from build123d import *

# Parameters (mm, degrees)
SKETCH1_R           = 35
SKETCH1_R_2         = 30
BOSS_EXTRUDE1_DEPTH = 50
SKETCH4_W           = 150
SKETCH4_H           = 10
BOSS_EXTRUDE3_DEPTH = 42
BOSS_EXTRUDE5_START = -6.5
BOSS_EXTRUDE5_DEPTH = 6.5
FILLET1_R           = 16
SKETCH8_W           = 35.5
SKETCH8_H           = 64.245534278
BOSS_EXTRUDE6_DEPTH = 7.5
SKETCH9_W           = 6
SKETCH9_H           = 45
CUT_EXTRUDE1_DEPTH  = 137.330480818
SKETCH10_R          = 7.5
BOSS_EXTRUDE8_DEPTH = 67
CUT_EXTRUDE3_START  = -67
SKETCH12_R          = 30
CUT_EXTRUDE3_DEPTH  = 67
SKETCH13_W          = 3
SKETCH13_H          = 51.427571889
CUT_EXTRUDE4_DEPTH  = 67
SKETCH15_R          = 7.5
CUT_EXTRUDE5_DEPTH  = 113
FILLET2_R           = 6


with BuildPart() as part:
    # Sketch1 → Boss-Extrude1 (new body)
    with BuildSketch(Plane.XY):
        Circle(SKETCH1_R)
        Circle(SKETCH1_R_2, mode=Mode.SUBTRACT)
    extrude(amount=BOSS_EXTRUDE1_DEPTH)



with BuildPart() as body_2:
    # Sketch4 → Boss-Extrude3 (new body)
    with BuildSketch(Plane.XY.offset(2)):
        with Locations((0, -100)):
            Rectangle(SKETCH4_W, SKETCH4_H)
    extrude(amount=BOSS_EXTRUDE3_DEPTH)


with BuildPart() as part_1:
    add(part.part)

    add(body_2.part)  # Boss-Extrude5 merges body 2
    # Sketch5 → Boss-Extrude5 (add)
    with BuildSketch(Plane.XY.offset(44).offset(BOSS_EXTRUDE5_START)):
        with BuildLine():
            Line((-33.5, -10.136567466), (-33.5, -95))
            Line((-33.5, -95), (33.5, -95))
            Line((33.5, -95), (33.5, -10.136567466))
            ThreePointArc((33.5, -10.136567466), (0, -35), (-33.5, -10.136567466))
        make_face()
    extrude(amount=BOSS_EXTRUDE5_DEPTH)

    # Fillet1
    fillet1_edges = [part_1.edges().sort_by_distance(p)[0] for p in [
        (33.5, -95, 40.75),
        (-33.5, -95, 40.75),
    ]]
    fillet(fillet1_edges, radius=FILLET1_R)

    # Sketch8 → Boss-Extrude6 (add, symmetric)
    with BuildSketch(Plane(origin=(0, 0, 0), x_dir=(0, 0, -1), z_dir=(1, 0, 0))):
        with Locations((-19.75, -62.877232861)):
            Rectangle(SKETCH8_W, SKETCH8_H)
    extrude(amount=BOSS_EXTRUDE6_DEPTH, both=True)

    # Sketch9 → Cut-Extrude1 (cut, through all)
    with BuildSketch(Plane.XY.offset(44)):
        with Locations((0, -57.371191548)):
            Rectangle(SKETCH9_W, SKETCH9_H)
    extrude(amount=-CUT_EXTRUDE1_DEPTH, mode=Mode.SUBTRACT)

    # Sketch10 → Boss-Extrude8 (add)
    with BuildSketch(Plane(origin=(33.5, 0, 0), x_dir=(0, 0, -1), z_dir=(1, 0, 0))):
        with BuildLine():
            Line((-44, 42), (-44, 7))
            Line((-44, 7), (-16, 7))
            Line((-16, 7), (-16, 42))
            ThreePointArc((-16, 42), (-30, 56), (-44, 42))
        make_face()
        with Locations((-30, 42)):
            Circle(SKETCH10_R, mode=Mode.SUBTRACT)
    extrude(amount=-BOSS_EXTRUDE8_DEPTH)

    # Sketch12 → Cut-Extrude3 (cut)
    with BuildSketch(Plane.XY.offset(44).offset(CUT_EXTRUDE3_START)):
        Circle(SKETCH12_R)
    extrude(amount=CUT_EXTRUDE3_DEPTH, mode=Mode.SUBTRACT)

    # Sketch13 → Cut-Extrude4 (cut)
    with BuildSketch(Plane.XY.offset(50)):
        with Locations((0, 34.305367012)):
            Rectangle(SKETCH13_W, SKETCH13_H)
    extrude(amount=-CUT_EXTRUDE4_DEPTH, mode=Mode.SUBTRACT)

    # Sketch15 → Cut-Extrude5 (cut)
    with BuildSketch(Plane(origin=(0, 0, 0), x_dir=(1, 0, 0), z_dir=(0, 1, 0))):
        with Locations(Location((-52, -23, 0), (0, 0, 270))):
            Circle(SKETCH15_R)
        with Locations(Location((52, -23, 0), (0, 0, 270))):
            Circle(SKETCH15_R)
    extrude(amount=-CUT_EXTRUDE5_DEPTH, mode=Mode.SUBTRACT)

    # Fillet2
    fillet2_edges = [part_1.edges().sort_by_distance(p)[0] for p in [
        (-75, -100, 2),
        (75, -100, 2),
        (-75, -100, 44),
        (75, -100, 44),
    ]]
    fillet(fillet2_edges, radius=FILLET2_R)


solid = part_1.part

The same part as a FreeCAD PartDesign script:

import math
import FreeCAD as App
import Part
import Sketcher
from FreeCAD import Vector


def edges_at(feature, points):
    """Names of the edges that pass closest to the given points."""
    edges = feature.Shape.Edges
    near = lambda p: min(range(len(edges)), key=lambda i: edges[i].distToShape(Part.Vertex(*p))[0])
    return sorted({f"Edge{near(p) + 1}" for p in points})

doc = App.newDocument("Part")
body = doc.addObject("PartDesign::Body", "Body")

sketch1 = body.newObject("Sketcher::SketchObject", "Sketch")
sketch1.AttachmentSupport = (doc.getObject("XY_Plane"), [""])
sketch1.MapMode = "FlatFace"
sketch1.addGeometry([
    Part.Circle(Vector(0, 0, 0), Vector(0, 0, 1), 35),
    Part.Circle(Vector(0, 0, 0), Vector(0, 0, 1), 30),
], False)
sketch1.addConstraint([
    Sketcher.Constraint("Coincident", 0, 3, -1, 1),
    Sketcher.Constraint("Coincident", 1, 3, -1, 1),
    Sketcher.Constraint("Diameter", 0, 70.0),
    Sketcher.Constraint("Diameter", 1, 60.0),
])
pad1 = body.newObject("PartDesign::Pad", "Pad")
pad1.Profile = sketch1
pad1.Length = 50
body2 = doc.addObject("PartDesign::Body", "Body001")

sketch2 = body2.newObject("Sketcher::SketchObject", "Sketch001")
sketch2.AttachmentSupport = (doc.getObject("XY_Plane001"), [""])
sketch2.MapMode = "FlatFace"
sketch2.AttachmentOffset = App.Placement(Vector(0, 0, 2), App.Rotation())
sketch2.addGeometry([
    Part.LineSegment(Vector(-75, -95, 0), Vector(-75, -105, 0)),
    Part.LineSegment(Vector(-75, -105, 0), Vector(75, -105, 0)),
    Part.LineSegment(Vector(75, -105, 0), Vector(75, -95, 0)),
    Part.LineSegment(Vector(75, -95, 0), Vector(-75, -95, 0)),
], False)
sketch2.addConstraint([
    Sketcher.Constraint("Coincident", 0, 2, 1, 1),
    Sketcher.Constraint("Coincident", 1, 2, 2, 1),
    Sketcher.Constraint("Coincident", 2, 2, 3, 1),
    Sketcher.Constraint("Coincident", 3, 2, 0, 1),
    Sketcher.Constraint("Vertical", 0),
    Sketcher.Constraint("Horizontal", 1),
    Sketcher.Constraint("Vertical", 2),
    Sketcher.Constraint("Horizontal", 3),
    Sketcher.Constraint("DistanceX", 1, 1, 1, 2, 150.0),
    Sketcher.Constraint("DistanceY", 0, 2, 0, 1, 10.0),
    Sketcher.Constraint("DistanceX", 0, 2, -1, 1, 75.0),
    Sketcher.Constraint("DistanceY", 0, 2, -1, 1, 105.0),
])
pad2 = body2.newObject("PartDesign::Pad", "Pad001")
pad2.Profile = sketch2
pad2.Length = 42
body.AllowCompound = True
doc.recompute()

boolean = body.newObject("PartDesign::Boolean", "Boolean")
boolean.Type = "Fuse"
boolean.addObjects([body2])

sketch3 = body.newObject("Sketcher::SketchObject", "Sketch002")
sketch3.AttachmentSupport = (doc.getObject("XY_Plane"), [""])
sketch3.MapMode = "FlatFace"
sketch3.AttachmentOffset = App.Placement(Vector(0, 0, 37.5), App.Rotation())
sketch3.addGeometry([
    Part.LineSegment(Vector(-34, -10, 0), Vector(-34, -95, 0)),
    Part.LineSegment(Vector(-34, -95, 0), Vector(34, -95, 0)),
    Part.LineSegment(Vector(34, -95, 0), Vector(34, -10, 0)),
    Part.ArcOfCircle(Part.Circle(Vector(0, 0, 0), Vector(0, 0, 1), 35), math.radians(-163), math.radians(-17)),
], False)
sketch3.addConstraint([
    Sketcher.Constraint("Coincident", 0, 2, 1, 1),
    Sketcher.Constraint("Coincident", 1, 2, 2, 1),
    Sketcher.Constraint("Coincident", 2, 2, 3, 2),
    Sketcher.Constraint("Coincident", 3, 1, 0, 1),
    Sketcher.Constraint("Vertical", 0),
    Sketcher.Constraint("Horizontal", 1),
    Sketcher.Constraint("Vertical", 2),
    Sketcher.Constraint("Coincident", 3, 3, -1, 1),
    Sketcher.Constraint("Horizontal", 2, 2, 3, 1),
    Sketcher.Constraint("Radius", 3, 35.0),
    Sketcher.Constraint("DistanceX", 1, 1, 1, 2, 67.0),
    Sketcher.Constraint("DistanceY", 0, 2, -1, 1, 95.0),
])
pad3 = body.newObject("PartDesign::Pad", "Pad002")
pad3.Profile = sketch3
pad3.Length = 6.5
doc.recompute()

fillet = body.newObject("PartDesign::Fillet", "Fillet")
fillet.Base = (pad3, edges_at(pad3, [(33.5, -95, 40.75), (-33.5, -95, 40.75)]))
fillet.Radius = 16

sketch4 = body.newObject("Sketcher::SketchObject", "Sketch003")
sketch4.AttachmentSupport = (doc.getObject("YZ_Plane"), [""])
sketch4.MapMode = "FlatFace"
sketch4.addGeometry([
    Part.LineSegment(Vector(-31, 38, 0), Vector(-95, 38, 0)),
    Part.LineSegment(Vector(-95, 38, 0), Vector(-95, 2, 0)),
    Part.LineSegment(Vector(-95, 2, 0), Vector(-31, 2, 0)),
    Part.LineSegment(Vector(-31, 2, 0), Vector(-31, 38, 0)),
], False)
sketch4.addConstraint([
    Sketcher.Constraint("Coincident", 0, 2, 1, 1),
    Sketcher.Constraint("Coincident", 1, 2, 2, 1),
    Sketcher.Constraint("Coincident", 2, 2, 3, 1),
    Sketcher.Constraint("Coincident", 3, 2, 0, 1),
    Sketcher.Constraint("Horizontal", 0),
    Sketcher.Constraint("Vertical", 1),
    Sketcher.Constraint("Horizontal", 2),
    Sketcher.Constraint("Vertical", 3),
    Sketcher.Constraint("DistanceY", 1, 2, 1, 1, 35.5),
    Sketcher.Constraint("DistanceX", 0, 2, -1, 1, 95.0),
    Sketcher.Constraint("DistanceY", -1, 1, 1, 2, 2.0),
    Sketcher.Constraint("DistanceX", 0, 2, 0, 1, 64.245534),
])
pad4 = body.newObject("PartDesign::Pad", "Pad003")
pad4.Profile = sketch4
pad4.Length = 15
pad4.Midplane = True

sketch5 = body.newObject("Sketcher::SketchObject", "Sketch004")
sketch5.AttachmentSupport = (doc.getObject("XY_Plane"), [""])
sketch5.MapMode = "FlatFace"
sketch5.AttachmentOffset = App.Placement(Vector(0, 0, 44), App.Rotation())
sketch5.addGeometry([
    Part.LineSegment(Vector(-3, -35, 0), Vector(-3, -80, 0)),
    Part.LineSegment(Vector(-3, -80, 0), Vector(3, -80, 0)),
    Part.LineSegment(Vector(3, -80, 0), Vector(3, -35, 0)),
    Part.LineSegment(Vector(3, -35, 0), Vector(-3, -35, 0)),
], False)
sketch5.addConstraint([
    Sketcher.Constraint("Coincident", 0, 2, 1, 1),
    Sketcher.Constraint("Coincident", 1, 2, 2, 1),
    Sketcher.Constraint("Coincident", 2, 2, 3, 1),
    Sketcher.Constraint("Coincident", 3, 2, 0, 1),
    Sketcher.Constraint("Vertical", 0),
    Sketcher.Constraint("Horizontal", 1),
    Sketcher.Constraint("Vertical", 2),
    Sketcher.Constraint("Horizontal", 3),
    Sketcher.Constraint("DistanceX", 1, 1, 1, 2, 6.0),
    Sketcher.Constraint("DistanceY", 0, 2, 0, 1, 45.0),
    Sketcher.Constraint("DistanceX", 0, 2, -1, 1, 3.0),
    Sketcher.Constraint("DistanceY", 0, 2, -1, 1, 79.871192),
])
pocket1 = body.newObject("PartDesign::Pocket", "Pocket")
pocket1.Profile = sketch5
pocket1.Type = "ThroughAll"

sketch6 = body.newObject("Sketcher::SketchObject", "Sketch005")
sketch6.AttachmentSupport = (doc.getObject("YZ_Plane"), [""])
sketch6.MapMode = "FlatFace"
sketch6.AttachmentOffset = App.Placement(Vector(0, 0, 33.5), App.Rotation())
sketch6.addGeometry([
    Part.LineSegment(Vector(42, 44, 0), Vector(7, 44, 0)),
    Part.LineSegment(Vector(7, 44, 0), Vector(7, 16, 0)),
    Part.LineSegment(Vector(7, 16, 0), Vector(42, 16, 0)),
    Part.ArcOfCircle(Part.Circle(Vector(42, 30, 0), Vector(0, 0, 1), 14), math.radians(-90), math.radians(90)),
    Part.Circle(Vector(42, 30, 0), Vector(0, 0, 1), 8),
], False)
sketch6.addConstraint([
    Sketcher.Constraint("Coincident", 0, 2, 1, 1),
    Sketcher.Constraint("Coincident", 1, 2, 2, 1),
    Sketcher.Constraint("Tangent", 2, 2, 3, 1),
    Sketcher.Constraint("Tangent", 3, 2, 0, 1),
    Sketcher.Constraint("Horizontal", 0),
    Sketcher.Constraint("Vertical", 1),
    Sketcher.Constraint("Horizontal", 2),
    Sketcher.Constraint("Coincident", 4, 3, 3, 3),
    Sketcher.Constraint("Diameter", 4, 15.0),
    Sketcher.Constraint("Radius", 3, 14.0),
    Sketcher.Constraint("DistanceX", 0, 2, 0, 1, 35.0),
    Sketcher.Constraint("DistanceX", -1, 1, 3, 3, 42.0),
    Sketcher.Constraint("DistanceY", -1, 1, 3, 3, 30.0),
])
pad5 = body.newObject("PartDesign::Pad", "Pad004")
pad5.Profile = sketch6
pad5.Length = 67
pad5.Reversed = True

sketch7 = body.newObject("Sketcher::SketchObject", "Sketch006")
sketch7.AttachmentSupport = (doc.getObject("XY_Plane"), [""])
sketch7.MapMode = "FlatFace"
sketch7.AttachmentOffset = App.Placement(Vector(0, 0, -23), App.Rotation())
sketch7.addGeometry(Part.Circle(Vector(0, 0, 0), Vector(0, 0, 1), 30), False)
sketch7.addConstraint([
    Sketcher.Constraint("Coincident", 0, 3, -1, 1),
    Sketcher.Constraint("Diameter", 0, 60.0),
])
pocket2 = body.newObject("PartDesign::Pocket", "Pocket001")
pocket2.Profile = sketch7
pocket2.Length = 67
pocket2.Reversed = True

sketch8 = body.newObject("Sketcher::SketchObject", "Sketch007")
sketch8.AttachmentSupport = (doc.getObject("XY_Plane"), [""])
sketch8.MapMode = "FlatFace"
sketch8.AttachmentOffset = App.Placement(Vector(0, 0, 50), App.Rotation())
sketch8.addGeometry([
    Part.LineSegment(Vector(-1.5, 60, 0), Vector(-1.5, 8.6, 0)),
    Part.LineSegment(Vector(-1.5, 8.6, 0), Vector(1.5, 8.6, 0)),
    Part.LineSegment(Vector(1.5, 8.6, 0), Vector(1.5, 60, 0)),
    Part.LineSegment(Vector(1.5, 60, 0), Vector(-1.5, 60, 0)),
], False)
sketch8.addConstraint([
    Sketcher.Constraint("Coincident", 0, 2, 1, 1),
    Sketcher.Constraint("Coincident", 1, 2, 2, 1),
    Sketcher.Constraint("Coincident", 2, 2, 3, 1),
    Sketcher.Constraint("Coincident", 3, 2, 0, 1),
    Sketcher.Constraint("Vertical", 0),
    Sketcher.Constraint("Horizontal", 1),
    Sketcher.Constraint("Vertical", 2),
    Sketcher.Constraint("Horizontal", 3),
    Sketcher.Constraint("DistanceX", 1, 1, 1, 2, 3.0),
    Sketcher.Constraint("DistanceX", 0, 2, -1, 1, 1.5),
    Sketcher.Constraint("DistanceY", 0, 2, 0, 1, 51.427572),
    Sketcher.Constraint("DistanceY", -1, 1, 0, 2, 8.591581),
])
pocket3 = body.newObject("PartDesign::Pocket", "Pocket002")
pocket3.Profile = sketch8
pocket3.Length = 67

sketch9 = body.newObject("Sketcher::SketchObject", "Sketch008")
sketch9.AttachmentSupport = (doc.getObject("XZ_Plane"), [""])
sketch9.MapMode = "FlatFace"
sketch9.addGeometry([
    Part.Circle(Vector(-52, 23, 0), Vector(0, 0, 1), 8),
    Part.Circle(Vector(52, 23, 0), Vector(0, 0, 1), 8),
], False)
sketch9.addConstraint([
    Sketcher.Constraint("Equal", 0, 1),
    Sketcher.Constraint("Symmetric", 0, 3, 1, 3, -2),
    Sketcher.Constraint("Diameter", 0, 15.0),
    Sketcher.Constraint("DistanceX", 0, 3, -1, 1, 52.0),
    Sketcher.Constraint("DistanceY", -1, 1, 0, 3, 23.0),
])
pocket4 = body.newObject("PartDesign::Pocket", "Pocket003")
pocket4.Profile = sketch9
pocket4.Length = 113
pocket4.Reversed = True
doc.recompute()

fillet2 = body.newObject("PartDesign::Fillet", "Fillet001")
fillet2.Base = (pocket4, edges_at(pocket4, [
    (-75, -100, 2),
    (75, -100, 2),
    (-75, -100, 44),
    (75, -100, 44),
]))
fillet2.Radius = 6

doc.recompute()
